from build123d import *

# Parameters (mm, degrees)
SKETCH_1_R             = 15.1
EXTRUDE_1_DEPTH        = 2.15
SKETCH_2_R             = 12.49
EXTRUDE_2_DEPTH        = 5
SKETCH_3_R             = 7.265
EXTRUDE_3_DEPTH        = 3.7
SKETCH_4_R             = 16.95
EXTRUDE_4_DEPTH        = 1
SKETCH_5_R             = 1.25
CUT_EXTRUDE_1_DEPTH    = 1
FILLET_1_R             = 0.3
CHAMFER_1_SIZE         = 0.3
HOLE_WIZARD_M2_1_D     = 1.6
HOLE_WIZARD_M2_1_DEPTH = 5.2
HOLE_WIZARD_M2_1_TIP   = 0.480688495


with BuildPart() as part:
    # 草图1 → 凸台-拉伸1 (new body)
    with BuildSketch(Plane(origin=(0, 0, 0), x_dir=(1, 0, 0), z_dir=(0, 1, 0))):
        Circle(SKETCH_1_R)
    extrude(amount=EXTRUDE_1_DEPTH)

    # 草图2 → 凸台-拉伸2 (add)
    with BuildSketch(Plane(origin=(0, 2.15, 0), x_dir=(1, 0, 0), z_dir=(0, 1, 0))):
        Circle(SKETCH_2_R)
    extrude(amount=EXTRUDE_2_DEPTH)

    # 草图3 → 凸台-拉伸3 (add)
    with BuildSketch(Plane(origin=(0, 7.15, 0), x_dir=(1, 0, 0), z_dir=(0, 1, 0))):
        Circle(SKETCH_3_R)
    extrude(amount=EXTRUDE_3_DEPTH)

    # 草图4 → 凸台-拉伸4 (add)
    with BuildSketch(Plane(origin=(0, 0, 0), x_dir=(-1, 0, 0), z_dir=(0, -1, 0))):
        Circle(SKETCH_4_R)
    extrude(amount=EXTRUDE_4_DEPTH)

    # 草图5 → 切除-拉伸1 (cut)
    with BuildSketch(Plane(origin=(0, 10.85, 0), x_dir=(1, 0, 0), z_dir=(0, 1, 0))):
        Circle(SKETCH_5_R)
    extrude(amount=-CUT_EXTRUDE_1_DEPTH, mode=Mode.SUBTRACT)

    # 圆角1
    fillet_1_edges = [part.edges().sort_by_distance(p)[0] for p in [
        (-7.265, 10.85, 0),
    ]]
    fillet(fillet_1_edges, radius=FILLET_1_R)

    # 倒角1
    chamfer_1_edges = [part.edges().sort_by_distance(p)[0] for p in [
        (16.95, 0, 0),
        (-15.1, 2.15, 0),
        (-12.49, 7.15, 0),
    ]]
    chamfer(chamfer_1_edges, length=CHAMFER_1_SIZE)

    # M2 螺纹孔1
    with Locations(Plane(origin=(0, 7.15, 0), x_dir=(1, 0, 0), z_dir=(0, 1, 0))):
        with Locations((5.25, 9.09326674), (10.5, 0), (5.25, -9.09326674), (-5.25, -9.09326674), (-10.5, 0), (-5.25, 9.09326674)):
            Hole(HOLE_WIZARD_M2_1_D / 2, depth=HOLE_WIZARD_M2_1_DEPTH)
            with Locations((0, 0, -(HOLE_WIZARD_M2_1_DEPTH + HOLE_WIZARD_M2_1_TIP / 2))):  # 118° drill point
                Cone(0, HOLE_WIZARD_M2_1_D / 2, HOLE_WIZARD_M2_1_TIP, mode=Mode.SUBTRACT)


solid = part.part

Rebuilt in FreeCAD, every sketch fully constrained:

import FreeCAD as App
import Part
import Sketcher

V = App.Vector


def edges_at(feature, points):
    """Names of the edges that pass closest to the given points."""
    edges = feature.Shape.Edges
    near = lambda p: min(range(len(edges)), key=lambda i: edges[i].distToShape(Part.Vertex(*p))[0])
    return sorted({f"Edge{near(p) + 1}" for p in points})

doc = App.newDocument("Part")
body = doc.addObject("PartDesign::Body", "Body")

# Sketch on XZ plane
sketch1 = doc.addObject("Sketcher::SketchObject", "Sketch")
body.addObject(sketch1)
sketch1.AttachmentSupport = (doc.XZ_Plane, [""])
sketch1.MapMode = "FlatFace"
sketch1.addGeometry(Part.Circle(V(0, 0, 0), V(0, 0, 1), 15.1), False)
sketch1.addConstraint([
    Sketcher.Constraint("Coincident", 0, 3, -1, 1),
    Sketcher.Constraint("Diameter", 0, 30.2),
])
pad1 = doc.addObject("PartDesign::Pad", "Pad")
body.addObject(pad1)
pad1.Profile = sketch1
pad1.Length = 2.15
pad1.Reversed = True

# Sketch on XZ plane
sketch2 = doc.addObject("Sketcher::SketchObject", "Sketch001")
body.addObject(sketch2)
sketch2.AttachmentSupport = (doc.XZ_Plane, [""])
sketch2.MapMode = "FlatFace"
sketch2.AttachmentOffset = App.Placement(V(0, 0, -2.15), App.Rotation())
sketch2.addGeometry(Part.Circle(V(0, 0, 0), V(0, 0, 1), 12.49), False)
sketch2.addConstraint([
    Sketcher.Constraint("Coincident", 0, 3, -1, 1),
    Sketcher.Constraint("Diameter", 0, 24.98),
])
pad2 = doc.addObject("PartDesign::Pad", "Pad001")
body.addObject(pad2)
pad2.Profile = sketch2
pad2.Length = 5
pad2.Reversed = True

# Sketch on XZ plane
sketch3 = doc.addObject("Sketcher::SketchObject", "Sketch002")
body.addObject(sketch3)
sketch3.AttachmentSupport = (doc.XZ_Plane, [""])
sketch3.MapMode = "FlatFace"
sketch3.AttachmentOffset = App.Placement(V(0, 0, -7.15), App.Rotation())
sketch3.addGeometry(Part.Circle(V(0, 0, 0), V(0, 0, 1), 7.265), False)
sketch3.addConstraint([
    Sketcher.Constraint("Coincident", 0, 3, -1, 1),
    Sketcher.Constraint("Diameter", 0, 14.53),
])
pad3 = doc.addObject("PartDesign::Pad", "Pad002")
body.addObject(pad3)
pad3.Profile = sketch3
pad3.Length = 3.7
pad3.Reversed = True

# Sketch on XZ plane
sketch4 = doc.addObject("Sketcher::SketchObject", "Sketch003")
body.addObject(sketch4)
sketch4.AttachmentSupport = (doc.XZ_Plane, [""])
sketch4.MapMode = "FlatFace"
sketch4.addGeometry(Part.Circle(V(0, 0, 0), V(0, 0, 1), 16.95), False)
sketch4.addConstraint([
    Sketcher.Constraint("Coincident", 0, 3, -1, 1),
    Sketcher.Constraint("Diameter", 0, 33.9),
])
pad4 = doc.addObject("PartDesign::Pad", "Pad003")
body.addObject(pad4)
pad4.Profile = sketch4
pad4.Length = 1

# Sketch on XZ plane
sketch5 = doc.addObject("Sketcher::SketchObject", "Sketch004")
body.addObject(sketch5)
sketch5.AttachmentSupport = (doc.XZ_Plane, [""])
sketch5.MapMode = "FlatFace"
sketch5.AttachmentOffset = App.Placement(V(0, 0, -10.85), App.Rotation())
sketch5.addGeometry(Part.Circle(V(0, 0, 0), V(0, 0, 1), 1.25), False)
sketch5.addConstraint([
    Sketcher.Constraint("Coincident", 0, 3, -1, 1),
    Sketcher.Constraint("Diameter", 0, 2.5),
])
pocket1 = doc.addObject("PartDesign::Pocket", "Pocket")
body.addObject(pocket1)
pocket1.Profile = sketch5
pocket1.Length = 1
pocket1.Reversed = True
doc.recompute()

fillet = doc.addObject("PartDesign::Fillet", "Fillet")
body.addObject(fillet)
fillet.Base = (pocket1, edges_at(pocket1, [(-7.265, 10.85, 0)]))
fillet.Radius = 0.3
doc.recompute()

chamfer = doc.addObject("PartDesign::Chamfer", "Chamfer")
body.addObject(chamfer)
chamfer.Base = (fillet, edges_at(fillet, [(16.95, 0, 0), (-15.1, 2.15, 0), (-12.49, 7.15, 0)]))
chamfer.Size = 0.3

# Sketch on XZ plane
sketch6 = doc.addObject("Sketcher::SketchObject", "Sketch005")
body.addObject(sketch6)
sketch6.AttachmentSupport = (doc.XZ_Plane, [""])
sketch6.MapMode = "FlatFace"
sketch6.AttachmentOffset = App.Placement(V(0, 0, -7.15), App.Rotation())
sketch6.addGeometry([
    Part.Circle(V(5.25, -9.093267, 0), V(0, 0, 1), 0.8),  # 0
    Part.Circle(V(10.5, 0, 0), V(0, 0, 1), 0.8),  # 1
    Part.Circle(V(5.25, 9.093267, 0), V(0, 0, 1), 0.8),  # 2
    Part.Circle(V(-5.25, 9.093267, 0), V(0, 0, 1), 0.8),  # 3
    Part.Circle(V(-10.5, 0, 0), V(0, 0, 1), 0.8),  # 4
    Part.Circle(V(-5.25, -9.093267, 0), V(0, 0, 1), 0.8),  # 5
], False)
sketch6.addConstraint([
    Sketcher.Constraint("Equal", 0, 1),
    Sketcher.Constraint("Equal", 1, 2),
    Sketcher.Constraint("Equal", 2, 3),
    Sketcher.Constraint("Equal", 3, 4),
    Sketcher.Constraint("Equal", 4, 5),
    Sketcher.Constraint("Symmetric", 0, 3, 3, 3, -1, 1),
    Sketcher.Constraint("Symmetric", 1, 3, 4, 3, -1, 1),
    Sketcher.Constraint("Symmetric", 2, 3, 5, 3, -1, 1),
    Sketcher.Constraint("Symmetric", 2, 3, 3, 3, -2),
    Sketcher.Constraint("PointOnObject", 1, 3, -1),
    Sketcher.Constraint("Diameter", 0, 1.6),
    Sketcher.Constraint("DistanceX", 4, 3, 1, 3, 21.0),
    Sketcher.Constraint("DistanceX", 3, 3, 2, 3, 10.5),
    Sketcher.Constraint("DistanceY", 0, 3, -1, 1, 9.093267),
])
doc.recompute()
hole = doc.addObject("PartDesign::Hole", "Hole")
body.addObject(hole)
hole.Profile = sketch6
hole.ThreadType = "None"
hole.Diameter = 1.6
hole.DepthType = "Dimension"
hole.Depth = 5.2
hole.DrillPoint = "Angled"
hole.DrillPointAngle = 118
hole.Reversed = True

doc.recompute()
